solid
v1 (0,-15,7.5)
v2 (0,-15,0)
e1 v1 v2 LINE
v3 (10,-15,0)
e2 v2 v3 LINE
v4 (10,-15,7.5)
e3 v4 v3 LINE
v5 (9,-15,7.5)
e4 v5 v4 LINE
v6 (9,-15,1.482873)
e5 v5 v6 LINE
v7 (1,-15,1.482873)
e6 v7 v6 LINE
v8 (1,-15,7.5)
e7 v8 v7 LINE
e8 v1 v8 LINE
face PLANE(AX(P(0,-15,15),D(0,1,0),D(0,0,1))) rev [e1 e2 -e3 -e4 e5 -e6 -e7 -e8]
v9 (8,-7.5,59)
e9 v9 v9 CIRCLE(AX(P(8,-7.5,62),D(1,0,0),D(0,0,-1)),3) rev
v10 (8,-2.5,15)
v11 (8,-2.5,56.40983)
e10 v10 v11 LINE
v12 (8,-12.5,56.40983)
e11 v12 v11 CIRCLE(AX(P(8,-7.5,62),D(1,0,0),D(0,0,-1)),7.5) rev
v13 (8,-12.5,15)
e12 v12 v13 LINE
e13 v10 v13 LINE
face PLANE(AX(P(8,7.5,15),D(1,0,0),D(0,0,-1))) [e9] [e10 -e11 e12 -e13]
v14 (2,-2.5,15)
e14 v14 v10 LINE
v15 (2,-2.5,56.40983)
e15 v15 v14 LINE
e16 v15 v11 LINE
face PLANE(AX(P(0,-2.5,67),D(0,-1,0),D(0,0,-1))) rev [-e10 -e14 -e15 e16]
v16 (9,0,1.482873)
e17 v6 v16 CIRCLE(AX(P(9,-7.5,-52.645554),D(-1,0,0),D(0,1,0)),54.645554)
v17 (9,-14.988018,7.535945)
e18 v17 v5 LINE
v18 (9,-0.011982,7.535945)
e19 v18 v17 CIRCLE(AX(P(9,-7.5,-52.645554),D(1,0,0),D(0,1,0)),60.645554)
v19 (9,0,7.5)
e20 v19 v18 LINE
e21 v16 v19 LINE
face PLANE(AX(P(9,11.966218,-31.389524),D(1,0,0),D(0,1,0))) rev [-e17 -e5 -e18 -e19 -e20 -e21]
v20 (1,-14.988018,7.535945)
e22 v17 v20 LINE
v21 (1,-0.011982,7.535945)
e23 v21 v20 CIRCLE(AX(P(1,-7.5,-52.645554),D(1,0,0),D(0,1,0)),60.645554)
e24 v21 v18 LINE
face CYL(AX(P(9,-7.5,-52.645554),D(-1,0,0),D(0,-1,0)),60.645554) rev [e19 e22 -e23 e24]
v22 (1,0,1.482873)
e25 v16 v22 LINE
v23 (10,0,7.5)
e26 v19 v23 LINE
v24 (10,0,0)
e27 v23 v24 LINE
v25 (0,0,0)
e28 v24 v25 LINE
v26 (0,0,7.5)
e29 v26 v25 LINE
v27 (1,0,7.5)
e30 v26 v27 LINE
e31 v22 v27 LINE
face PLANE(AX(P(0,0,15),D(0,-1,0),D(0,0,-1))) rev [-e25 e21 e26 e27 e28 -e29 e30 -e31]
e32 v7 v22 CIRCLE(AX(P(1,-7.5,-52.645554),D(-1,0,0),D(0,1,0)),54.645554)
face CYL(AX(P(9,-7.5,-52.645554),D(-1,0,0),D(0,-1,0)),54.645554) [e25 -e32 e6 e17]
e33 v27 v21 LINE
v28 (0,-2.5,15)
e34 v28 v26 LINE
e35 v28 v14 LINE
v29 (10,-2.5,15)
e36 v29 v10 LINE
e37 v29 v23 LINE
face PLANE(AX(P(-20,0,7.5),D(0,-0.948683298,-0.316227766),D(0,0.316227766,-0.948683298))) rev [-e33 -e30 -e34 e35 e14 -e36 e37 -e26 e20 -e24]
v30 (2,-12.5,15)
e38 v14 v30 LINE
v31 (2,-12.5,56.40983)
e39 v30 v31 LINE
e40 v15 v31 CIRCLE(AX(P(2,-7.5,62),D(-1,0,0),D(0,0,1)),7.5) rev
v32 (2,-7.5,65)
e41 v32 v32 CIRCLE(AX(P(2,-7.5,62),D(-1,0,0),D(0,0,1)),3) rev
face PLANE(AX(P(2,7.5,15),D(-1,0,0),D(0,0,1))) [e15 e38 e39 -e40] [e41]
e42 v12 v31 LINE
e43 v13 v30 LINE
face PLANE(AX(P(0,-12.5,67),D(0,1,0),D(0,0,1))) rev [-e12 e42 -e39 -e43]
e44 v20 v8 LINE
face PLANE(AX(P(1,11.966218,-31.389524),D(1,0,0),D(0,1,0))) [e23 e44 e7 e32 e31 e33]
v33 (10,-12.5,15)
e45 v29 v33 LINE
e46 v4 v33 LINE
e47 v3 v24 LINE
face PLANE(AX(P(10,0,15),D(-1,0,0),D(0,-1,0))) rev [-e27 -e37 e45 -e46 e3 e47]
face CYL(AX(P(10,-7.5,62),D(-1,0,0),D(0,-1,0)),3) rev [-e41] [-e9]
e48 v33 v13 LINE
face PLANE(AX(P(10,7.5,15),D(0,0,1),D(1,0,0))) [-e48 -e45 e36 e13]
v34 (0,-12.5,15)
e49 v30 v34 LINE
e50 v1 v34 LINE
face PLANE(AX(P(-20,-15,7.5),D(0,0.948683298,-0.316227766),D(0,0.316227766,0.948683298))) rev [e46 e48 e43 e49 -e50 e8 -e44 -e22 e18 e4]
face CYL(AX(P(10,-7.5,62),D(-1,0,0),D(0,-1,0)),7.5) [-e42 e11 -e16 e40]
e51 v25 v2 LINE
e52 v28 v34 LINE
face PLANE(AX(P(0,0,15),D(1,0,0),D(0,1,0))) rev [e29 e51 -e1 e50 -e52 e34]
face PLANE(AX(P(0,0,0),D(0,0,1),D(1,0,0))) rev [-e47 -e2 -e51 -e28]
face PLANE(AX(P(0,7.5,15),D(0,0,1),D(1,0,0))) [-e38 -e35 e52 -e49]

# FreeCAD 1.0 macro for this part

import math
import FreeCAD as App
import Part
import Sketcher
from FreeCAD import Vector

doc = App.newDocument("Part")
params = doc.addObject("Spreadsheet::Sheet", "Params")
for row, (alias, value) in enumerate([
    ("sketch1_width", "10 mm"),
    ("sketch1_height", "15 mm"),
    ("pad1_length", "15 mm"),
    ("sketch2_width", "2.5 mm"),
    ("sketch2_height", "7.5 mm"),
    ("pocket1_length", "30 mm"),
    ("sketch3_radius", "3 mm"),
    ("pocket2_length", "4 mm"),
    ("pocket2_length2", "4 mm"),
    ("sketch4_width", "10 mm"),
    ("pad2_length", "52 mm"),
    ("sketch5_diameter", "15 mm"),
    ("sketch5_diameter2", "10 mm"),
    ("pad3_length", "10 mm"),
    ("sketch6_diameter", "6 mm"),
    ("pocket3_length", "10 mm"),
    ("sketch7_width", "2 mm"),
], start=1):
    params.set(f"A{row}", alias)
    params.set(f"B{row}", "=" + value)
    params.setAlias(f"B{row}", alias)

body = doc.addObject("PartDesign::Body", "Body")

# Sketch on XY plane
sketch1 = body.newObject("Sketcher::SketchObject", "Sketch")
sketch1.AttachmentSupport = (doc.getObject("XY_Plane"), [""])
sketch1.MapMode = "FlatFace"
sketch1.addGeometry([
    Part.LineSegment(Vector(0, 0, 0), Vector(0, -15, 0)),
    Part.LineSegment(Vector(0, -15, 0), Vector(10, -15, 0)),
    Part.LineSegment(Vector(10, -15, 0), Vector(10, 0, 0)),
    Part.LineSegment(Vector(10, 0, 0), Vector(0, 0, 0)),
], False)
sketch1.addConstraint([
    Sketcher.Constraint("Coincident", 0, 2, 1, 1),
    Sketcher.Constraint("Coincident", 1, 2, 2, 1),
    Sketcher.Constraint("Coincident", 2, 2, 3, 1),
    Sketcher.Constraint("Coincident", 3, 2, 0, 1),
    Sketcher.Constraint("Vertical", 0),
    Sketcher.Constraint("Horizontal", 1),
    Sketcher.Constraint("Vertical", 2),
    Sketcher.Constraint("Horizontal", 3),
    Sketcher.Constraint("Coincident", 3, 2, -1, 1),
    Sketcher.Constraint("DistanceX", 1, 1, 1, 2, 10.0),
    Sketcher.Constraint("DistanceY", 0, 2, 0, 1, 15.0),
])
sketch1.setExpression("Constraints[9]", "Params.sketch1_width")
sketch1.setExpression("Constraints[10]", "Params.sketch1_height")
pad1 = body.newObject("PartDesign::Pad", "Pad")
pad1.Profile = sketch1
pad1.setExpression("Length", "Params.pad1_length")

# Sketch on YZ plane
sketch2 = body.newObject("Sketcher::SketchObject", "Sketch001")
sketch2.AttachmentSupport = (doc.getObject("YZ_Plane"), [""])
sketch2.MapMode = "FlatFace"
sketch2.AttachmentOffset = App.Placement(Vector(0, 0, 10), App.Rotation())
sketch2.addGeometry([
    Part.LineSegment(Vector(-2.5, 15, 0), Vector(0, 7.5, 0)),  # 0
    Part.LineSegment(Vector(0, 7.5, 0), Vector(0, 15, 0)),  # 1
    Part.LineSegment(Vector(0, 15, 0), Vector(-2.5, 15, 0)),  # 2
    Part.LineSegment(Vector(-15, 7.5, 0), Vector(-12.5, 15, 0)),  # 3
    Part.LineSegment(Vector(-12.5, 15, 0), Vector(-15, 15, 0)),  # 4
    Part.LineSegment(Vector(-15, 15, 0), Vector(-15, 7.5, 0)),  # 5
], False)
sketch2.addConstraint([
    Sketcher.Constraint("Coincident", 0, 2, 1, 1),
    Sketcher.Constraint("Coincident", 1, 2, 2, 1),
    Sketcher.Constraint("Coincident", 2, 2, 0, 1),
    Sketcher.Constraint("Coincident", 3, 2, 4, 1),
    Sketcher.Constraint("Coincident", 4, 2, 5, 1),
    Sketcher.Constraint("Coincident", 5, 2, 3, 1),
    Sketcher.Constraint("Vertical", 1),
    Sketcher.Constraint("Horizontal", 2),
    Sketcher.Constraint("Horizontal", 4),
    Sketcher.Constraint("Vertical", 5),
    Sketcher.Constraint("PointOnObject", 0, 2, -2),
    Sketcher.Constraint("Horizontal", 2, 2, 3, 2),
    Sketcher.Constraint("Horizontal", 0, 2, 5, 2),
    Sketcher.Constraint("Equal", 2, 4),
    Sketcher.Constraint("DistanceX", 2, 2, 2, 1, 2.5),
    Sketcher.Constraint("DistanceY", 1, 1, 1, 2, 7.5),
    Sketcher.Constraint("DistanceY", -1, 1, 1, 2, 15.0),
    Sketcher.Constraint("DistanceX", 4, 2, -1, 1, 15.0),
])
sketch2.setExpression("Constraints[14]", "Params.sketch2_width")
sketch2.setExpression("Constraints[15]", "Params.sketch2_height")
pocket1 = body.newObject("PartDesign::Pocket", "Pocket")
pocket1.Profile = sketch2
pocket1.setExpression("Length", "Params.pocket1_length")

# Sketch on YZ plane
sketch3 = body.newObject("Sketcher::SketchObject", "Sketch002")
sketch3.AttachmentSupport = (doc.getObject("YZ_Plane"), [""])
sketch3.MapMode = "FlatFace"
sketch3.AttachmentOffset = App.Placement(Vector(0, 0, 5), App.Rotation())
sketch3.addGeometry([
    Part.ArcOfCircle(Part.Circle(Vector(-7.5, -52.645554, 0), Vector(0, 0, 1), 60.645554), math.radians(47.516627), math.radians(132.483373)),
    Part.ArcOfCircle(Part.Circle(Vector(-46.432437, -10.133494, 0), Vector(0, 0, 1), 3), math.radians(132.483373), math.radians(312.483373)),
    Part.ArcOfCircle(Part.Circle(Vector(-7.5, -52.645554, 0), Vector(0, 0, 1), 54.645554), math.radians(47.516627), math.radians(132.483373)),
    Part.ArcOfCircle(Part.Circle(Vector(31.432437, -10.133494, 0), Vector(0, 0, 1), 3), math.radians(-132.483373), math.radians(47.516627)),
], False)
sketch3.addConstraint([
    Sketcher.Constraint("Tangent", 0, 2, 1, 1),
    Sketcher.Constraint("Tangent", 1, 2, 2, 2),
    Sketcher.Constraint("Tangent", 2, 1, 3, 1),
    Sketcher.Constraint("Tangent", 3, 2, 0, 1),
    Sketcher.Constraint("Coincident", 2, 3, 0, 3),
    Sketcher.Constraint("Horizontal", 1, 3, 3, 3),
    Sketcher.Constraint("Radius", 1, 3.0),
    Sketcher.Constraint("DistanceX", 0, 3, -1, 1, 7.5),
    Sketcher.Constraint("Radius", 0, 60.645554),
    Sketcher.Constraint("DistanceX", 0, 2, 3, 3, 79.891002),
    Sketcher.Constraint("DistanceY", 0, 3, -1, 1, 52.645554),
])
sketch3.setExpression("Constraints[6]", "Params.sketch3_radius")
pocket2 = body.newObject("PartDesign::Pocket", "Pocket001")
pocket2.Profile = sketch3
pocket2.Type = "TwoLengths"
pocket2.setExpression("Length", "Params.pocket2_length")
pocket2.setExpression("Length2", "Params.pocket2_length2")
pocket2.Reversed = True

# Sketch on XY plane
sketch4 = body.newObject("Sketcher::SketchObject", "Sketch003")
sketch4.AttachmentSupport = (doc.getObject("XY_Plane"), [""])
sketch4.MapMode = "FlatFace"
sketch4.AttachmentOffset = App.Placement(Vector(0, 0, 15), App.Rotation())
sketch4.addGeometry([
    Part.LineSegment(Vector(0, -2.5, 0), Vector(0, -12.5, 0)),
    Part.LineSegment(Vector(0, -12.5, 0), Vector(10, -12.5, 0)),
    Part.LineSegment(Vector(10, -12.5, 0), Vector(10, -2.5, 0)),
    Part.LineSegment(Vector(10, -2.5, 0), Vector(0, -2.5, 0)),
], False)
sketch4.addConstraint([
    Sketcher.Constraint("Coincident", 0, 2, 1, 1),
    Sketcher.Constraint("Coincident", 1, 2, 2, 1),
    Sketcher.Constraint("Coincident", 2, 2, 3, 1),
    Sketcher.Constraint("Coincident", 3, 2, 0, 1),
    Sketcher.Constraint("Vertical", 0),
    Sketcher.Constraint("Horizontal", 1),
    Sketcher.Constraint("Vertical", 2),
    Sketcher.Constraint("Horizontal", 3),
    Sketcher.Constraint("PointOnObject", 0, 2, -2),
    Sketcher.Constraint("Equal", 3, 0),
    Sketcher.Constraint("DistanceX", 1, 1, 1, 2, 10.0),
    Sketcher.Constraint("DistanceY", 0, 2, -1, 1, 12.5),
])
sketch4.setExpression("Constraints[10]", "Params.sketch4_width")
pad2 = body.newObject("PartDesign::Pad", "Pad001")
pad2.Profile = sketch4
pad2.setExpression("Length", "Params.pad2_length")

# Sketch on YZ plane
sketch5 = body.newObject("Sketcher::SketchObject", "Sketch004")
sketch5.AttachmentSupport = (doc.getObject("YZ_Plane"), [""])
sketch5.MapMode = "FlatFace"
sketch5.addGeometry([
    Part.Circle(Vector(-7.5, 62, 0), Vector(0, 0, 1), 7.5),
    Part.Circle(Vector(-7.5, 62, 0), Vector(0, 0, 1), 5),
], False)
sketch5.addConstraint([
    Sketcher.Constraint("Coincident", 1, 3, 0, 3),
    Sketcher.Constraint("Diameter", 0, 15.0),
    Sketcher.Constraint("Diameter", 1, 10.0),
    Sketcher.Constraint("DistanceY", -1, 1, 0, 3, 62.0),
    Sketcher.Constraint("DistanceX", 0, 3, -1, 1, 7.5),
])
sketch5.setExpression("Constraints[1]", "Params.sketch5_diameter")
sketch5.setExpression("Constraints[2]", "Params.sketch5_diameter2")
pad3 = body.newObject("PartDesign::Pad", "Pad002")
pad3.Profile = sketch5
pad3.setExpression("Length", "Params.pad3_length")

# Sketch on YZ plane
sketch6 = body.newObject("Sketcher::SketchObject", "Sketch005")
sketch6.AttachmentSupport = (doc.getObject("YZ_Plane"), [""])
sketch6.MapMode = "FlatFace"
sketch6.addGeometry(Part.Circle(Vector(-7.5, 62, 0), Vector(0, 0, 1), 3), False)
sketch6.addConstraint([
    Sketcher.Constraint("Diameter", 0, 6.0),
    Sketcher.Constraint("DistanceY", -1, 1, 0, 3, 62.0),
    Sketcher.Constraint("DistanceX", 0, 3, -1, 1, 7.5),
])
sketch6.setExpression("Constraints[0]", "Params.sketch6_diameter")
pocket3 = body.newObject("PartDesign::Pocket", "Pocket002")
pocket3.Profile = sketch6
pocket3.setExpression("Length", "Params.pocket3_length")
pocket3.Reversed = True

# Sketch on XZ plane
sketch7 = body.newObject("Sketcher::SketchObject", "Sketch006")
sketch7.AttachmentSupport = (doc.getObject("XZ_Plane"), [""])
sketch7.MapMode = "FlatFace"
sketch7.AttachmentOffset = App.Placement(Vector(0, 0, 2.5), App.Rotation())
sketch7.addGeometry([
    Part.LineSegment(Vector(0, 15, 0), Vector(0, 71.751382, 0)),  # 0
    Part.LineSegment(Vector(0, 71.751382, 0), Vector(2, 71.751382, 0)),  # 1
    Part.LineSegment(Vector(2, 71.751382, 0), Vector(2, 15, 0)),  # 2
    Part.LineSegment(Vector(2, 15, 0), Vector(0, 15, 0)),  # 3
    Part.LineSegment(Vector(8, 15, 0), Vector(8, 75.928957, 0)),  # 4
    Part.LineSegment(Vector(8, 75.928957, 0), Vector(10, 75.928957, 0)),  # 5
    Part.LineSegment(Vector(10, 75.928957, 0), Vector(10, 15, 0)),  # 6
    Part.LineSegment(Vector(10, 15, 0), Vector(8, 15, 0)),  # 7
], False)
sketch7.addConstraint([
    Sketcher.Constraint("Coincident", 0, 2, 1, 1),
    Sketcher.Constraint("Coincident", 1, 2, 2, 1),
    Sketcher.Constraint("Coincident", 2, 2, 3, 1),
    Sketcher.Constraint("Coincident", 3, 2, 0, 1),
    Sketcher.Constraint("Coincident", 4, 2, 5, 1),
    Sketcher.Constraint("Coincident", 5, 2, 6, 1),
    Sketcher.Constraint("Coincident", 6, 2, 7, 1),
    Sketcher.Constraint("Coincident", 7, 2, 4, 1),
    Sketcher.Constraint("Vertical", 0),
    Sketcher.Constraint("Horizontal", 1),
    Sketcher.Constraint("Vertical", 2),
    Sketcher.Constraint("Horizontal", 3),
    Sketcher.Constraint("Vertical", 4),
    Sketcher.Constraint("Horizontal", 5),
    Sketcher.Constraint("Vertical", 6),
    Sketcher.Constraint("Horizontal", 7),
    Sketcher.Constraint("PointOnObject", 0, 2, -2),
    Sketcher.Constraint("Horizontal", 3, 2, 6, 2),
    Sketcher.Constraint("Equal", 3, 5),
    Sketcher.Constraint("DistanceX", 1, 1, 1, 2, 2.0),
    Sketcher.Constraint("DistanceY", -1, 1, 2, 2, 15.0),
    Sketcher.Constraint("DistanceX", -1, 1, 4, 2, 8.0),
    Sketcher.Constraint("DistanceY", 0, 1, 0, 2, 56.751382),
    Sketcher.Constraint("DistanceY", 4, 1, 4, 2, 60.928957),
])
sketch7.setExpression("Constraints[19]", "Params.sketch7_width")
pocket4 = body.newObject("PartDesign::Pocket", "Pocket003")
pocket4.Profile = sketch7
pocket4.Type = "ThroughAll"
pocket4.Midplane = True

doc.recompute()
